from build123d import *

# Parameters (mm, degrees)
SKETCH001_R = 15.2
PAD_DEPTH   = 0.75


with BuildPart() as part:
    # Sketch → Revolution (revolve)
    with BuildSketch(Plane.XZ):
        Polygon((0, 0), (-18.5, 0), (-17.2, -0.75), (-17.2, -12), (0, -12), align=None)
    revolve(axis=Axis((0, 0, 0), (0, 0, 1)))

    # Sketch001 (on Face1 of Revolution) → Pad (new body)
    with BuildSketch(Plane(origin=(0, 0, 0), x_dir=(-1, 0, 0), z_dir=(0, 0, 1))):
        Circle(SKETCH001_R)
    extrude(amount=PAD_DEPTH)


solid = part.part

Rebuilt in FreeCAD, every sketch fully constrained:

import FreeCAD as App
import Part
import Sketcher

V = App.Vector
Q = App.Units.Quantity

doc = App.newDocument("Part")
body = doc.addObject("PartDesign::Body", "Body")

# Sketch on XZ plane
sketch1 = body.newObject("Sketcher::SketchObject", "Sketch")
sketch1.AttachmentSupport = (doc.getObject("XZ_Plane"), [""])
sketch1.MapMode = "FlatFace"
sketch1.addGeometry([
    Part.LineSegment(V(0, 0, 0), V(-18.5, 0, 0)),  # 0
    Part.LineSegment(V(-18.5, 0, 0), V(-17.2, -0.75, 0)),  # 1
    Part.LineSegment(V(-17.2, -0.75, 0), V(-17.2, -12, 0)),  # 2
    Part.LineSegment(V(-17.2, -12, 0), V(0, -12, 0)),  # 3
    Part.LineSegment(V(0, -12, 0), V(0, 0, 0)),  # 4
], False)
sketch1.addConstraint([
    Sketcher.Constraint("Coincident", 0, 2, 1, 1),
    Sketcher.Constraint("Coincident", 1, 2, 2, 1),
    Sketcher.Constraint("Coincident", 2, 2, 3, 1),
    Sketcher.Constraint("Coincident", 3, 2, 4, 1),
    Sketcher.Constraint("Coincident", 4, 2, 0, 1),
    Sketcher.Constraint("Horizontal", 0),
    Sketcher.Constraint("Vertical", 2),
    Sketcher.Constraint("Horizontal", 3),
    Sketcher.Constraint("Vertical", 4),
    Sketcher.Constraint("Coincident", 4, 2, -1, 1),
    Sketcher.Constraint("DistanceY", 4, 1, 4, 2, Q("12 mm")),
    Sketcher.Constraint("DistanceX", 0, 2, 0, 1, Q("18.5 mm")),
    Sketcher.Constraint("DistanceX", 3, 1, 3, 2, Q("17.2 mm")),
    Sketcher.Constraint("DistanceY", 2, 2, 2, 1, Q("11.25 mm")),
])
revolution = body.newObject("PartDesign::Revolution", "Revolution")
revolution.Profile = sketch1
revolution.ReferenceAxis = (sketch1, ["V_Axis"])
revolution.Angle = 360

# Sketch on XY plane
sketch2 = body.newObject("Sketcher::SketchObject", "Sketch001")
sketch2.AttachmentSupport = (doc.getObject("XY_Plane"), [""])
sketch2.MapMode = "FlatFace"
sketch2.addGeometry(Part.Circle(V(0, 0, 0), V(0, 0, 1), 15.2), False)
sketch2.addConstraint([
    Sketcher.Constraint("Coincident", 0, 3, -1, 1),
    Sketcher.Constraint("Diameter", 0, Q("30.4 mm")),
])
pad1 = body.newObject("PartDesign::Pad", "Pad")
pad1.Profile = sketch2
pad1.Length = 0.75

doc.recompute()
